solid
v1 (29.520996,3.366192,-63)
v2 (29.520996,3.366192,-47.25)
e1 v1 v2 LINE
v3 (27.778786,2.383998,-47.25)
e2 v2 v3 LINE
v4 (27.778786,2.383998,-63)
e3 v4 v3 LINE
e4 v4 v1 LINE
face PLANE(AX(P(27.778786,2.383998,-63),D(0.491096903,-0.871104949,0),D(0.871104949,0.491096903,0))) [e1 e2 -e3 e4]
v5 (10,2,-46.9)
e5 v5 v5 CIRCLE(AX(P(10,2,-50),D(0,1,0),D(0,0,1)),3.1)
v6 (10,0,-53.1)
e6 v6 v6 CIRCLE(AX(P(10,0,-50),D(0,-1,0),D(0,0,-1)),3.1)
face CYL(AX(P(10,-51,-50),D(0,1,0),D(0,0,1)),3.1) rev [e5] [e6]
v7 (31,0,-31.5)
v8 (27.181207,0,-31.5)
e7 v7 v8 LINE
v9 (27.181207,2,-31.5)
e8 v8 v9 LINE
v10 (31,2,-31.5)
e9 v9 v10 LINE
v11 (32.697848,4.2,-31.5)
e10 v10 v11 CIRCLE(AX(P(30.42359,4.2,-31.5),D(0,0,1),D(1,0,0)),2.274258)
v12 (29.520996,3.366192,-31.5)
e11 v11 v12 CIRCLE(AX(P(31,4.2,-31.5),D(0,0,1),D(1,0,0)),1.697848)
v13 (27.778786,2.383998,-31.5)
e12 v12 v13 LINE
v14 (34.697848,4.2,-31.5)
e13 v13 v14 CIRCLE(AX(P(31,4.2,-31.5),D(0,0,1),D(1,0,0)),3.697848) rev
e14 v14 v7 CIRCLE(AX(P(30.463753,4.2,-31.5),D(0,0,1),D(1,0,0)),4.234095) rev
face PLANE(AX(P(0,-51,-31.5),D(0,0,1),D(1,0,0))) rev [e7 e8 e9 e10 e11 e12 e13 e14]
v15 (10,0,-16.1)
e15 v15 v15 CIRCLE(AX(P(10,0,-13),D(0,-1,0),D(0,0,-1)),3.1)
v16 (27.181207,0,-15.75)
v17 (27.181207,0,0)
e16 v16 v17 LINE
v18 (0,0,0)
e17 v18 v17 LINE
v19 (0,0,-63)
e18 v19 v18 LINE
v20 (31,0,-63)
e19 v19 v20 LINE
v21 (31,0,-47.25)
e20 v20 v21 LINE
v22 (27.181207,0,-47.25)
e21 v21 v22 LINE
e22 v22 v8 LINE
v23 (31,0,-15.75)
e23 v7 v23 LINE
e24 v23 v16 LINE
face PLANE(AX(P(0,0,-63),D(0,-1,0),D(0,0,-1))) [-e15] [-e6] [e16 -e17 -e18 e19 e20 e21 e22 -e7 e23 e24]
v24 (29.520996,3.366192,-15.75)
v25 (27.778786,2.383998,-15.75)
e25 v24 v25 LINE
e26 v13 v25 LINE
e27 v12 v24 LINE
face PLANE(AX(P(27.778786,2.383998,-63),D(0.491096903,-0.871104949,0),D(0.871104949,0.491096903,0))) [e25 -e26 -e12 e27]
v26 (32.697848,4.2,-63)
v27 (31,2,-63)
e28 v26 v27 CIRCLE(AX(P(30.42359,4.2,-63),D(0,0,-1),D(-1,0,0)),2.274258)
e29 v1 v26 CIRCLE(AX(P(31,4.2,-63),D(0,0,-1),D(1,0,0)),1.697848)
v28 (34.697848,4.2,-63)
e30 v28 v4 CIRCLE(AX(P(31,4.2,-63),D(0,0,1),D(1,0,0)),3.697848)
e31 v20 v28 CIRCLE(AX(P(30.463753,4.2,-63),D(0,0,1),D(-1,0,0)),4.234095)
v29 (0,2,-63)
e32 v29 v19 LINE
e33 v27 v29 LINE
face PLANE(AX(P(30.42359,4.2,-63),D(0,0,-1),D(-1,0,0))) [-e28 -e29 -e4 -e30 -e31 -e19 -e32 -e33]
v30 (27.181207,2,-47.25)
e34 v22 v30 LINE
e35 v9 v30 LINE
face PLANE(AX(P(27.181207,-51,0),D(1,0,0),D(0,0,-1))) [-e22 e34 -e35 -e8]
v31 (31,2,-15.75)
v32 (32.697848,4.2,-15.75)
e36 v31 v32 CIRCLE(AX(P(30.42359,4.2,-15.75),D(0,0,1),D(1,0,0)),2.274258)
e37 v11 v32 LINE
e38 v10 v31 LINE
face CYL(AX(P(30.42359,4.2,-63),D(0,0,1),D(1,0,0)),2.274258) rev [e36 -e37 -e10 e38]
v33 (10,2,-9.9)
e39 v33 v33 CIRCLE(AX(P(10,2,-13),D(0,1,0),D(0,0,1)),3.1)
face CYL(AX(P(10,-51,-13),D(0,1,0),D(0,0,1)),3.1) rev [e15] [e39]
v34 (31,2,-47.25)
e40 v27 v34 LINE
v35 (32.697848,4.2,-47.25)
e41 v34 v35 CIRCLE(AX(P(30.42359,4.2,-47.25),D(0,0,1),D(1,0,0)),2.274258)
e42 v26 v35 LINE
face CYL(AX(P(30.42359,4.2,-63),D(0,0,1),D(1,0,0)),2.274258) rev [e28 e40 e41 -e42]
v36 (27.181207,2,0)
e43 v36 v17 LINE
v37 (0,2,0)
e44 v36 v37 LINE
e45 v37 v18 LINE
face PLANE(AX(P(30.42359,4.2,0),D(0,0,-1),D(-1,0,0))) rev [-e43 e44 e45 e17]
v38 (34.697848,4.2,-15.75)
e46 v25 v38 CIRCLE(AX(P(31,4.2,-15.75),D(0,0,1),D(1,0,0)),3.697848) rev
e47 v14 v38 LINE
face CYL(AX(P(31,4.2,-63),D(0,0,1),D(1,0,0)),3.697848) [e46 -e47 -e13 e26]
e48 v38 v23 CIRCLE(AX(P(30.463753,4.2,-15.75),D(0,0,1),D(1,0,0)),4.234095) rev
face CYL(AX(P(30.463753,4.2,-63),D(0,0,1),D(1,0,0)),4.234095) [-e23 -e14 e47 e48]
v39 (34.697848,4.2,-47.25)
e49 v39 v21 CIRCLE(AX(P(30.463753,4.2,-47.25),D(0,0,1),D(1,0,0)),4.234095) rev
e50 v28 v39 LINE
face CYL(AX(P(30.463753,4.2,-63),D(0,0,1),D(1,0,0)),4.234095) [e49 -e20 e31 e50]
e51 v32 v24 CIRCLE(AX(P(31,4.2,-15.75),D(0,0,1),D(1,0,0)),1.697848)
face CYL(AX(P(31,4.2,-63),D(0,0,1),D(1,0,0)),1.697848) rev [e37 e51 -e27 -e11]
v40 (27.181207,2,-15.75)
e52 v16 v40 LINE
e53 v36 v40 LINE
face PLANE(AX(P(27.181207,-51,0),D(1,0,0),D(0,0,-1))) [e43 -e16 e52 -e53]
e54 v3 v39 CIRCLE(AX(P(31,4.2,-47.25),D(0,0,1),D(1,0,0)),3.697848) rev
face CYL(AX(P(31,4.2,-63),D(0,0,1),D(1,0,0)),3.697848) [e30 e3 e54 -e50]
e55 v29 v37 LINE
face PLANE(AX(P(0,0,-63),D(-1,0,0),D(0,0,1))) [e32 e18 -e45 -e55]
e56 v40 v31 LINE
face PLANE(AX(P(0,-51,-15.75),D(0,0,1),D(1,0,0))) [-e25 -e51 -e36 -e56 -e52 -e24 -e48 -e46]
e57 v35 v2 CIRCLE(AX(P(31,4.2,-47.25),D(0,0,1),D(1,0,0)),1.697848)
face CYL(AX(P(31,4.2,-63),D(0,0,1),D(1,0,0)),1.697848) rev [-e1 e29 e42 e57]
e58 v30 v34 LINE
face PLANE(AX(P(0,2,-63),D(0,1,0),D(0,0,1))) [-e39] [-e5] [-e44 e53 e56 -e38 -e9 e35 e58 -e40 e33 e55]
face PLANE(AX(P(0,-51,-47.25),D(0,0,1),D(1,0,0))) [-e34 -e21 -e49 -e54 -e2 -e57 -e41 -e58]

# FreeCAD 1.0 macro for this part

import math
import FreeCAD as App
import Part
import Sketcher
from FreeCAD import Vector
Q = App.Units.Quantity

doc = App.newDocument("Part")
body = doc.addObject("PartDesign::Body", "Body")

# Sketch on XY plane
sketch1 = body.newObject("Sketcher::SketchObject", "Sketch")
sketch1.AttachmentSupport = (doc.getObject("XY_Plane"), [""])
sketch1.MapMode = "FlatFace"
sketch1.addGeometry([
    Part.LineSegment(Vector(0, 0, 0), Vector(31, 0, 0)),  # 0
    Part.ArcOfCircle(Part.Circle(Vector(30.5, 4.2, 0), Vector(0, 0, 1), 4.2), math.radians(-83), math.radians(0)),  # 1
    Part.ArcOfCircle(Part.Circle(Vector(31, 4.2, 0), Vector(0, 0, 1), 3.7), math.radians(0), math.radians(209)),  # 2
    Part.LineSegment(Vector(27.8, 2.4, 0), Vector(29.5, 3.4, 0)),  # 3
    Part.ArcOfCircle(Part.Circle(Vector(31, 4.2, 0), Vector(0, 0, 1), 1.7), math.radians(0), math.radians(209)),  # 4
    Part.ArcOfCircle(Part.Circle(Vector(30.4, 4.2, 0), Vector(0, 0, 1), 2.3), math.radians(-75), math.radians(0)),  # 5
    Part.LineSegment(Vector(31, 2, 0), Vector(0, 2, 0)),  # 6
    Part.LineSegment(Vector(0, 2, 0), Vector(0, 0, 0)),  # 7
], False)
sketch1.addConstraint([
    Sketcher.Constraint("Coincident", 0, 2, 1, 1),
    Sketcher.Constraint("Tangent", 1, 2, 2, 1),
    Sketcher.Constraint("Coincident", 2, 2, 3, 1),
    Sketcher.Constraint("Coincident", 3, 2, 4, 2),
    Sketcher.Constraint("Tangent", 4, 1, 5, 2),
    Sketcher.Constraint("Coincident", 5, 1, 6, 1),
    Sketcher.Constraint("Coincident", 6, 2, 7, 1),
    Sketcher.Constraint("Coincident", 7, 2, 0, 1),
    Sketcher.Constraint("Horizontal", 0),
    Sketcher.Constraint("Horizontal", 6),
    Sketcher.Constraint("Vertical", 7),
    Sketcher.Constraint("Coincident", 7, 2, -1, 1),
    Sketcher.Constraint("Coincident", 4, 3, 2, 3),
    Sketcher.Constraint("Horizontal", 1, 3, 2, 3),
    Sketcher.Constraint("Horizontal", 4, 3, 5, 3),
    Sketcher.Constraint("Vertical", 4, 3, 0, 2),
    Sketcher.Constraint("Vertical", 0, 2, 5, 1),
    Sketcher.Constraint("DistanceX", 0, 1, 0, 2, Q("31 mm")),
    Sketcher.Constraint("DistanceY", 7, 2, 7, 1, Q("2 mm")),
    Sketcher.Constraint("Distance", 3, Q("2 mm")),
    Sketcher.Constraint("DistanceY", -1, 1, 1, 3, Q("4.2 mm")),
    Sketcher.Constraint("Radius", 2, Q("3.697848 mm")),
    Sketcher.Constraint("DistanceY", -1, 1, 2, 2, Q("2.383998 mm")),
    Sketcher.Constraint("DistanceX", 2, 2, 3, 2, Q("1.74221 mm")),
])
pad1 = body.newObject("PartDesign::Pad", "Pad")
pad1.Profile = sketch1
pad1.Length = 63
pad1.Reversed = True

# Sketch on XZ plane
sketch2 = body.newObject("Sketcher::SketchObject", "Sketch001")
sketch2.AttachmentSupport = (doc.getObject("XZ_Plane"), [""])
sketch2.MapMode = "FlatFace"
sketch2.AttachmentOffset = App.Placement(Vector(0, 0, -12), App.Rotation())
sketch2.addGeometry([
    Part.LineSegment(Vector(27.2, -47.2, 0), Vector(27.2, -31.5, 0)),  # 0
    Part.LineSegment(Vector(27.2, -31.5, 0), Vector(37.8, -31.5, 0)),  # 1
    Part.LineSegment(Vector(37.8, -31.5, 0), Vector(37.8, -47.2, 0)),  # 2
    Part.LineSegment(Vector(37.8, -47.2, 0), Vector(27.2, -47.2, 0)),  # 3
    Part.LineSegment(Vector(27.2, -15.8, 0), Vector(27.2, 0, 0)),  # 4
    Part.LineSegment(Vector(27.2, 0, 0), Vector(37.8, 0, 0)),  # 5
    Part.LineSegment(Vector(37.8, 0, 0), Vector(37.8, -15.8, 0)),  # 6
    Part.LineSegment(Vector(37.8, -15.8, 0), Vector(27.2, -15.8, 0)),  # 7
    Part.Circle(Vector(10, -13, 0), Vector(0, 0, 1), 3.1),  # 8
    Part.Circle(Vector(10, -50, 0), Vector(0, 0, 1), 3.1),  # 9
], False)
sketch2.addConstraint([
    Sketcher.Constraint("Coincident", 0, 2, 1, 1),
    Sketcher.Constraint("Coincident", 1, 2, 2, 1),
    Sketcher.Constraint("Coincident", 2, 2, 3, 1),
    Sketcher.Constraint("Coincident", 3, 2, 0, 1),
    Sketcher.Constraint("Coincident", 4, 2, 5, 1),
    Sketcher.Constraint("Coincident", 5, 2, 6, 1),
    Sketcher.Constraint("Coincident", 6, 2, 7, 1),
    Sketcher.Constraint("Coincident", 7, 2, 4, 1),
    Sketcher.Constraint("Vertical", 0),
    Sketcher.Constraint("Horizontal", 1),
    Sketcher.Constraint("Vertical", 2),
    Sketcher.Constraint("Horizontal", 3),
    Sketcher.Constraint("Vertical", 4),
    Sketcher.Constraint("Horizontal", 5),
    Sketcher.Constraint("Vertical", 6),
    Sketcher.Constraint("Horizontal", 7),
    Sketcher.Constraint("Equal", 8, 9),
    Sketcher.Constraint("PointOnObject", 4, 2, -1),
    Sketcher.Constraint("Vertical", 8, 3, 9, 3),
    Sketcher.Constraint("Vertical", 3, 2, 4, 2),
    Sketcher.Constraint("Vertical", 2, 2, 5, 2),
    Sketcher.Constraint("Equal", 2, 4),
    Sketcher.Constraint("Diameter", 8, Q("6.2 mm")),
    Sketcher.Constraint("DistanceX", -1, 1, 8, 3, Q("10 mm")),
    Sketcher.Constraint("DistanceY", 8, 3, -1, 1, Q("13 mm")),
    Sketcher.Constraint("DistanceY", 9, 3, -1, 1, Q("50 mm")),
    Sketcher.Constraint("DistanceY", 0, 1, 0, 2, Q("15.75 mm")),
    Sketcher.Constraint("DistanceY", 0, 2, -1, 1, Q("31.5 mm")),
    Sketcher.Constraint("DistanceX", 1, 1, 1, 2, Q("10.621571 mm")),
    Sketcher.Constraint("DistanceX", -1, 1, 1, 2, Q("37.802779 mm")),
])
pocket1 = body.newObject("PartDesign::Pocket", "Pocket")
pocket1.Profile = sketch2
pocket1.Length = 63
pocket1.Reversed = True

doc.recompute()
